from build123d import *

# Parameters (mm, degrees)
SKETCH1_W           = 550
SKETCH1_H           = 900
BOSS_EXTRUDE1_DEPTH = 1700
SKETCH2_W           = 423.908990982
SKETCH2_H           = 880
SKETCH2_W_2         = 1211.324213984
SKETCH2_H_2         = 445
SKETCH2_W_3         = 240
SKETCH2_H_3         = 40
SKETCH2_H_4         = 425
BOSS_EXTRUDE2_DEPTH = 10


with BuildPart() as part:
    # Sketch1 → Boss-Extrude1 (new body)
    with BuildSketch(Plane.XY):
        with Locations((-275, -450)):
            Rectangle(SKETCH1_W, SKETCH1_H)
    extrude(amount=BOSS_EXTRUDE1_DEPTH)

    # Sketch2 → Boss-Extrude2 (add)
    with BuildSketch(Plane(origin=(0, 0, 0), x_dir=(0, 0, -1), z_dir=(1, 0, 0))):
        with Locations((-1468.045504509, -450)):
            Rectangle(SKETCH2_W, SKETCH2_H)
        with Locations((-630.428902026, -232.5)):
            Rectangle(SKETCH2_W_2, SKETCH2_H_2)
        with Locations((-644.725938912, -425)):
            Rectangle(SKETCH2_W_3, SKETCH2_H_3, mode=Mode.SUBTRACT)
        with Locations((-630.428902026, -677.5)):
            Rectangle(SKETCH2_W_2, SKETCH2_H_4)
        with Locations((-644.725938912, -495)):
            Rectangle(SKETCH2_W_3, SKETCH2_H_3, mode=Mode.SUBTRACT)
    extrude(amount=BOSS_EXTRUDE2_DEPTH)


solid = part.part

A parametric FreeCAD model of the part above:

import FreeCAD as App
import Part
import Sketcher
Q = App.Units.Quantity


def add_polygon(sketch, points):
    """Adds a closed chain of lines whose ends are joined by coincident constraints."""
    first, n = sketch.GeometryCount, len(points)
    for a, b in zip(points, points[1:] + points[:1]):
        sketch.addGeometry(Part.LineSegment(App.Vector(*a, 0), App.Vector(*b, 0)), False)
    for i in range(n):
        sketch.addConstraint(Sketcher.Constraint("Coincident", first + i, 2, first + (i + 1) % n, 1))

doc = App.newDocument("Part")
body = doc.addObject("PartDesign::Body", "Body")

# Sketch on XY plane
sketch1 = body.newObject("Sketcher::SketchObject", "Sketch")
sketch1.AttachmentSupport = (doc.getObject("XY_Plane"), [""])
sketch1.MapMode = "FlatFace"
add_polygon(sketch1, [(-550, 0), (-550, -900), (0, -900), (0, 0)])  # lines 0-3
sketch1.addConstraint([
    Sketcher.Constraint("Vertical", 0),
    Sketcher.Constraint("Horizontal", 1),
    Sketcher.Constraint("Vertical", 2),
    Sketcher.Constraint("Horizontal", 3),
    Sketcher.Constraint("Coincident", 2, 2, -1, 1),
    Sketcher.Constraint("DistanceX", 1, 1, 1, 2, Q("550 mm")),
    Sketcher.Constraint("DistanceY", 0, 2, 0, 1, Q("900 mm")),
])
pad1 = body.newObject("PartDesign::Pad", "Pad")
pad1.Profile = sketch1
pad1.Length = 1700

# Sketch on YZ plane
sketch2 = body.newObject("Sketcher::SketchObject", "Sketch001")
sketch2.AttachmentSupport = (doc.getObject("YZ_Plane"), [""])
sketch2.MapMode = "FlatFace"
add_polygon(sketch2, [(-10, 1680), (-890, 1680), (-890, 1256), (-10, 1256)])  # lines 0-3
add_polygon(sketch2, [(-10, 1236), (-455, 1236), (-455, 25), (-10, 25)])  # lines 4-7
add_polygon(sketch2, [(-445, 525), (-445, 765), (-405, 765), (-405, 525)])  # lines 8-11
add_polygon(sketch2, [(-465, 1236), (-890, 1236), (-890, 25), (-465, 25)])  # lines 12-15
add_polygon(sketch2, [(-515, 525), (-515, 765), (-475, 765), (-475, 525)])  # lines 16-19
sketch2.addConstraint([
    Sketcher.Constraint("Horizontal", 0),
    Sketcher.Constraint("Vertical", 1),
    Sketcher.Constraint("Horizontal", 2),
    Sketcher.Constraint("Vertical", 3),
    Sketcher.Constraint("Horizontal", 4),
    Sketcher.Constraint("Vertical", 5),
    Sketcher.Constraint("Horizontal", 6),
    Sketcher.Constraint("Vertical", 7),
    Sketcher.Constraint("Vertical", 8),
    Sketcher.Constraint("Horizontal", 9),
    Sketcher.Constraint("Vertical", 10),
    Sketcher.Constraint("Horizontal", 11),
    Sketcher.Constraint("Horizontal", 12),
    Sketcher.Constraint("Vertical", 13),
    Sketcher.Constraint("Horizontal", 14),
    Sketcher.Constraint("Vertical", 15),
    Sketcher.Constraint("Vertical", 16),
    Sketcher.Constraint("Horizontal", 17),
    Sketcher.Constraint("Vertical", 18),
    Sketcher.Constraint("Horizontal", 19),
    Sketcher.Constraint("Horizontal", 7, 2, 12, 2),
    Sketcher.Constraint("Horizontal", 6, 2, 13, 2),
    Sketcher.Constraint("Horizontal", 9, 2, 16, 2),
    Sketcher.Constraint("Horizontal", 11, 2, 18, 2),
    Sketcher.Constraint("Vertical", 3, 2, 6, 2),
    Sketcher.Constraint("Vertical", 1, 2, 12, 2),
    Sketcher.Constraint("Equal", 11, 17),
    Sketcher.Constraint("DistanceX", 0, 2, 0, 1, Q("880 mm")),
    Sketcher.Constraint("DistanceX", 4, 2, 4, 1, Q("445 mm")),
    Sketcher.Constraint("DistanceX", 9, 1, 9, 2, Q("40 mm")),
    Sketcher.Constraint("DistanceX", 12, 2, 12, 1, Q("425 mm")),
    Sketcher.Constraint("DistanceY", 8, 1, 8, 2, Q("240 mm")),
    Sketcher.Constraint("DistanceX", 0, 2, -1, 1, Q("890 mm")),
    Sketcher.Constraint("DistanceY", -1, 1, 0, 2, Q("1680 mm")),
    Sketcher.Constraint("DistanceX", 8, 2, -1, 1, Q("445 mm")),
    Sketcher.Constraint("DistanceX", 16, 2, -1, 1, Q("515 mm")),
    Sketcher.Constraint("DistanceY", 4, 2, 1, 2, Q("20 mm")),
    Sketcher.Constraint("DistanceY", 1, 2, 1, 1, Q("423.908991 mm")),
    Sketcher.Constraint("DistanceY", 5, 2, 5, 1, Q("1211.324214 mm")),
    Sketcher.Constraint("DistanceY", -1, 1, 8, 2, Q("764.725939 mm")),
])
pad2 = body.newObject("PartDesign::Pad", "Pad001")
pad2.Profile = sketch2
pad2.Length = 10

doc.recompute()
